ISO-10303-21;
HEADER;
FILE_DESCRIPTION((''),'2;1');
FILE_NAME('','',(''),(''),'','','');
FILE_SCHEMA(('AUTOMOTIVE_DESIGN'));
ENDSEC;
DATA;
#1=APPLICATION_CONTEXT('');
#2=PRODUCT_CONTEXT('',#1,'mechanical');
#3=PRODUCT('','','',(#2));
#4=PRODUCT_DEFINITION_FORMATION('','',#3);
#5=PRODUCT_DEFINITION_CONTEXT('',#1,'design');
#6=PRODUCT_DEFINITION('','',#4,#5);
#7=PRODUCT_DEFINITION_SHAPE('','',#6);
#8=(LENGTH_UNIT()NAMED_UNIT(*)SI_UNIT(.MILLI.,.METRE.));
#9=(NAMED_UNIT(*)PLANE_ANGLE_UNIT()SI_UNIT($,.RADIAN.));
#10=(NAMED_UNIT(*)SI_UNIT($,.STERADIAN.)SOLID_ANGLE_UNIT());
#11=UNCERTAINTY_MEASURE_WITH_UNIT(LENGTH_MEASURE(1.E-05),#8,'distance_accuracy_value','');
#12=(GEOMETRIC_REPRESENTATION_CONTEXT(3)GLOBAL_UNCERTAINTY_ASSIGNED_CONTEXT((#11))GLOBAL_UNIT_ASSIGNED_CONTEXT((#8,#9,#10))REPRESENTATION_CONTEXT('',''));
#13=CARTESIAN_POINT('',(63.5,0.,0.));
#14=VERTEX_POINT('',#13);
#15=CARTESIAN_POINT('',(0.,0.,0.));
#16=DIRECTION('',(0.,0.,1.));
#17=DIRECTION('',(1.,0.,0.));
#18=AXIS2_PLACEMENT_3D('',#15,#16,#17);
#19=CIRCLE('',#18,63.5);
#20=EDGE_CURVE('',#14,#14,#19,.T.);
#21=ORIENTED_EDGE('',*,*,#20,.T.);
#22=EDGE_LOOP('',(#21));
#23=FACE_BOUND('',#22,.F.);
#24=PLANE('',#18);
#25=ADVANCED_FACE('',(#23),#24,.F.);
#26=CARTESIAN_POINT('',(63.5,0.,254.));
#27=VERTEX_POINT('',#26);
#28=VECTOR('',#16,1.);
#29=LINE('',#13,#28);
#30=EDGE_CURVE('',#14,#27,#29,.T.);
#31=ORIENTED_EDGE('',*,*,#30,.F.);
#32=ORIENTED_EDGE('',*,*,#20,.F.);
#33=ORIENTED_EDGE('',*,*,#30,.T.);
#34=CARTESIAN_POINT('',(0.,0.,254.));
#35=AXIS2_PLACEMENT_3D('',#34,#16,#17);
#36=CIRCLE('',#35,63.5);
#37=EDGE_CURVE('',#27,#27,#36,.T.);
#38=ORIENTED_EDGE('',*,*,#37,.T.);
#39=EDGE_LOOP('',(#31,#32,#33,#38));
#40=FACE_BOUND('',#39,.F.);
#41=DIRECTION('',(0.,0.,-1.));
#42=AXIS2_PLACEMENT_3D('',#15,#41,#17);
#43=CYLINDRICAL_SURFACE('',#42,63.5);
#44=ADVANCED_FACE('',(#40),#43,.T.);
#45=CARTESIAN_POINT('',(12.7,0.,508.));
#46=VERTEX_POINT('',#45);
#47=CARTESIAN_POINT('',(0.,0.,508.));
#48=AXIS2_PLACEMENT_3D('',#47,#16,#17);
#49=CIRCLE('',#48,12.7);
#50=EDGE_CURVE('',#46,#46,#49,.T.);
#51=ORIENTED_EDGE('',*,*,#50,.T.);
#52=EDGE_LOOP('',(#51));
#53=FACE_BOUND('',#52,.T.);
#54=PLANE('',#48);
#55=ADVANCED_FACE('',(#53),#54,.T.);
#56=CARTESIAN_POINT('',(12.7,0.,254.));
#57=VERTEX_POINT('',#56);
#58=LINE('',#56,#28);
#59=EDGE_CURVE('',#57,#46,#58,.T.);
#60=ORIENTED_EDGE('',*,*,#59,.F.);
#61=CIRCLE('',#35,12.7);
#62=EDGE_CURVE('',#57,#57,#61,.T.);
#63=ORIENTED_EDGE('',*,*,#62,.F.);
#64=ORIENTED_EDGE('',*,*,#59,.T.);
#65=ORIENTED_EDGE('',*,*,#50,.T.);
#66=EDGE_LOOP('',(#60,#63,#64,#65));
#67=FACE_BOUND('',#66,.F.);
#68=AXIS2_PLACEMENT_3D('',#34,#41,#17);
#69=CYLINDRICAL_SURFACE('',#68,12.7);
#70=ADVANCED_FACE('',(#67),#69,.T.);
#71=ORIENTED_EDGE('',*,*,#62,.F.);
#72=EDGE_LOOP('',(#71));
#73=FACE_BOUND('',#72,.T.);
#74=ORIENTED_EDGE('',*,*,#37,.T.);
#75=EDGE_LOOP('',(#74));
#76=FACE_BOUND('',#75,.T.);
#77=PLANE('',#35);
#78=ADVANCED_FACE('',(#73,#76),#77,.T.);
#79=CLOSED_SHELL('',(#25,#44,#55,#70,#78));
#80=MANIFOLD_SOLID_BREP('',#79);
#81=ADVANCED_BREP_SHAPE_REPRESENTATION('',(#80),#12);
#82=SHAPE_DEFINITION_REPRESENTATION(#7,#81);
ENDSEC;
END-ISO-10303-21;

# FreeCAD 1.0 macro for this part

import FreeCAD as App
import Part
import Sketcher

V = App.Vector
Q = App.Units.Quantity

doc = App.newDocument("Part")
body = doc.addObject("PartDesign::Body", "Body")

# Sketch on XY plane
sketch1 = body.newObject("Sketcher::SketchObject", "Sketch")
sketch1.AttachmentSupport = (doc.getObject("XY_Plane"), [""])
sketch1.MapMode = "FlatFace"
sketch1.addGeometry(Part.Circle(V(0, 0, 0), V(0, 0, 1), 64), False)
sketch1.addConstraint([
    Sketcher.Constraint("Coincident", 0, 3, -1, 1),
    Sketcher.Constraint("Diameter", 0, Q("5 in")),
])
pad1 = body.newObject("PartDesign::Pad", "Pad")
pad1.Profile = sketch1
pad1.Length = Q("10 in")

# Sketch on XY plane
sketch2 = body.newObject("Sketcher::SketchObject", "Sketch001")
sketch2.AttachmentSupport = (doc.getObject("XY_Plane"), [""])
sketch2.MapMode = "FlatFace"
sketch2.AttachmentOffset = App.Placement(V(0, 0, 10 * 25.4), App.Rotation())
sketch2.addGeometry(Part.Circle(V(0, 0, 0), V(0, 0, 1), 13), False)
sketch2.addConstraint([
    Sketcher.Constraint("Coincident", 0, 3, -1, 1),
    Sketcher.Constraint("Diameter", 0, Q("1 in")),
])
pad2 = body.newObject("PartDesign::Pad", "Pad001")
pad2.Profile = sketch2
pad2.Length = Q("10 in")

doc.recompute()
